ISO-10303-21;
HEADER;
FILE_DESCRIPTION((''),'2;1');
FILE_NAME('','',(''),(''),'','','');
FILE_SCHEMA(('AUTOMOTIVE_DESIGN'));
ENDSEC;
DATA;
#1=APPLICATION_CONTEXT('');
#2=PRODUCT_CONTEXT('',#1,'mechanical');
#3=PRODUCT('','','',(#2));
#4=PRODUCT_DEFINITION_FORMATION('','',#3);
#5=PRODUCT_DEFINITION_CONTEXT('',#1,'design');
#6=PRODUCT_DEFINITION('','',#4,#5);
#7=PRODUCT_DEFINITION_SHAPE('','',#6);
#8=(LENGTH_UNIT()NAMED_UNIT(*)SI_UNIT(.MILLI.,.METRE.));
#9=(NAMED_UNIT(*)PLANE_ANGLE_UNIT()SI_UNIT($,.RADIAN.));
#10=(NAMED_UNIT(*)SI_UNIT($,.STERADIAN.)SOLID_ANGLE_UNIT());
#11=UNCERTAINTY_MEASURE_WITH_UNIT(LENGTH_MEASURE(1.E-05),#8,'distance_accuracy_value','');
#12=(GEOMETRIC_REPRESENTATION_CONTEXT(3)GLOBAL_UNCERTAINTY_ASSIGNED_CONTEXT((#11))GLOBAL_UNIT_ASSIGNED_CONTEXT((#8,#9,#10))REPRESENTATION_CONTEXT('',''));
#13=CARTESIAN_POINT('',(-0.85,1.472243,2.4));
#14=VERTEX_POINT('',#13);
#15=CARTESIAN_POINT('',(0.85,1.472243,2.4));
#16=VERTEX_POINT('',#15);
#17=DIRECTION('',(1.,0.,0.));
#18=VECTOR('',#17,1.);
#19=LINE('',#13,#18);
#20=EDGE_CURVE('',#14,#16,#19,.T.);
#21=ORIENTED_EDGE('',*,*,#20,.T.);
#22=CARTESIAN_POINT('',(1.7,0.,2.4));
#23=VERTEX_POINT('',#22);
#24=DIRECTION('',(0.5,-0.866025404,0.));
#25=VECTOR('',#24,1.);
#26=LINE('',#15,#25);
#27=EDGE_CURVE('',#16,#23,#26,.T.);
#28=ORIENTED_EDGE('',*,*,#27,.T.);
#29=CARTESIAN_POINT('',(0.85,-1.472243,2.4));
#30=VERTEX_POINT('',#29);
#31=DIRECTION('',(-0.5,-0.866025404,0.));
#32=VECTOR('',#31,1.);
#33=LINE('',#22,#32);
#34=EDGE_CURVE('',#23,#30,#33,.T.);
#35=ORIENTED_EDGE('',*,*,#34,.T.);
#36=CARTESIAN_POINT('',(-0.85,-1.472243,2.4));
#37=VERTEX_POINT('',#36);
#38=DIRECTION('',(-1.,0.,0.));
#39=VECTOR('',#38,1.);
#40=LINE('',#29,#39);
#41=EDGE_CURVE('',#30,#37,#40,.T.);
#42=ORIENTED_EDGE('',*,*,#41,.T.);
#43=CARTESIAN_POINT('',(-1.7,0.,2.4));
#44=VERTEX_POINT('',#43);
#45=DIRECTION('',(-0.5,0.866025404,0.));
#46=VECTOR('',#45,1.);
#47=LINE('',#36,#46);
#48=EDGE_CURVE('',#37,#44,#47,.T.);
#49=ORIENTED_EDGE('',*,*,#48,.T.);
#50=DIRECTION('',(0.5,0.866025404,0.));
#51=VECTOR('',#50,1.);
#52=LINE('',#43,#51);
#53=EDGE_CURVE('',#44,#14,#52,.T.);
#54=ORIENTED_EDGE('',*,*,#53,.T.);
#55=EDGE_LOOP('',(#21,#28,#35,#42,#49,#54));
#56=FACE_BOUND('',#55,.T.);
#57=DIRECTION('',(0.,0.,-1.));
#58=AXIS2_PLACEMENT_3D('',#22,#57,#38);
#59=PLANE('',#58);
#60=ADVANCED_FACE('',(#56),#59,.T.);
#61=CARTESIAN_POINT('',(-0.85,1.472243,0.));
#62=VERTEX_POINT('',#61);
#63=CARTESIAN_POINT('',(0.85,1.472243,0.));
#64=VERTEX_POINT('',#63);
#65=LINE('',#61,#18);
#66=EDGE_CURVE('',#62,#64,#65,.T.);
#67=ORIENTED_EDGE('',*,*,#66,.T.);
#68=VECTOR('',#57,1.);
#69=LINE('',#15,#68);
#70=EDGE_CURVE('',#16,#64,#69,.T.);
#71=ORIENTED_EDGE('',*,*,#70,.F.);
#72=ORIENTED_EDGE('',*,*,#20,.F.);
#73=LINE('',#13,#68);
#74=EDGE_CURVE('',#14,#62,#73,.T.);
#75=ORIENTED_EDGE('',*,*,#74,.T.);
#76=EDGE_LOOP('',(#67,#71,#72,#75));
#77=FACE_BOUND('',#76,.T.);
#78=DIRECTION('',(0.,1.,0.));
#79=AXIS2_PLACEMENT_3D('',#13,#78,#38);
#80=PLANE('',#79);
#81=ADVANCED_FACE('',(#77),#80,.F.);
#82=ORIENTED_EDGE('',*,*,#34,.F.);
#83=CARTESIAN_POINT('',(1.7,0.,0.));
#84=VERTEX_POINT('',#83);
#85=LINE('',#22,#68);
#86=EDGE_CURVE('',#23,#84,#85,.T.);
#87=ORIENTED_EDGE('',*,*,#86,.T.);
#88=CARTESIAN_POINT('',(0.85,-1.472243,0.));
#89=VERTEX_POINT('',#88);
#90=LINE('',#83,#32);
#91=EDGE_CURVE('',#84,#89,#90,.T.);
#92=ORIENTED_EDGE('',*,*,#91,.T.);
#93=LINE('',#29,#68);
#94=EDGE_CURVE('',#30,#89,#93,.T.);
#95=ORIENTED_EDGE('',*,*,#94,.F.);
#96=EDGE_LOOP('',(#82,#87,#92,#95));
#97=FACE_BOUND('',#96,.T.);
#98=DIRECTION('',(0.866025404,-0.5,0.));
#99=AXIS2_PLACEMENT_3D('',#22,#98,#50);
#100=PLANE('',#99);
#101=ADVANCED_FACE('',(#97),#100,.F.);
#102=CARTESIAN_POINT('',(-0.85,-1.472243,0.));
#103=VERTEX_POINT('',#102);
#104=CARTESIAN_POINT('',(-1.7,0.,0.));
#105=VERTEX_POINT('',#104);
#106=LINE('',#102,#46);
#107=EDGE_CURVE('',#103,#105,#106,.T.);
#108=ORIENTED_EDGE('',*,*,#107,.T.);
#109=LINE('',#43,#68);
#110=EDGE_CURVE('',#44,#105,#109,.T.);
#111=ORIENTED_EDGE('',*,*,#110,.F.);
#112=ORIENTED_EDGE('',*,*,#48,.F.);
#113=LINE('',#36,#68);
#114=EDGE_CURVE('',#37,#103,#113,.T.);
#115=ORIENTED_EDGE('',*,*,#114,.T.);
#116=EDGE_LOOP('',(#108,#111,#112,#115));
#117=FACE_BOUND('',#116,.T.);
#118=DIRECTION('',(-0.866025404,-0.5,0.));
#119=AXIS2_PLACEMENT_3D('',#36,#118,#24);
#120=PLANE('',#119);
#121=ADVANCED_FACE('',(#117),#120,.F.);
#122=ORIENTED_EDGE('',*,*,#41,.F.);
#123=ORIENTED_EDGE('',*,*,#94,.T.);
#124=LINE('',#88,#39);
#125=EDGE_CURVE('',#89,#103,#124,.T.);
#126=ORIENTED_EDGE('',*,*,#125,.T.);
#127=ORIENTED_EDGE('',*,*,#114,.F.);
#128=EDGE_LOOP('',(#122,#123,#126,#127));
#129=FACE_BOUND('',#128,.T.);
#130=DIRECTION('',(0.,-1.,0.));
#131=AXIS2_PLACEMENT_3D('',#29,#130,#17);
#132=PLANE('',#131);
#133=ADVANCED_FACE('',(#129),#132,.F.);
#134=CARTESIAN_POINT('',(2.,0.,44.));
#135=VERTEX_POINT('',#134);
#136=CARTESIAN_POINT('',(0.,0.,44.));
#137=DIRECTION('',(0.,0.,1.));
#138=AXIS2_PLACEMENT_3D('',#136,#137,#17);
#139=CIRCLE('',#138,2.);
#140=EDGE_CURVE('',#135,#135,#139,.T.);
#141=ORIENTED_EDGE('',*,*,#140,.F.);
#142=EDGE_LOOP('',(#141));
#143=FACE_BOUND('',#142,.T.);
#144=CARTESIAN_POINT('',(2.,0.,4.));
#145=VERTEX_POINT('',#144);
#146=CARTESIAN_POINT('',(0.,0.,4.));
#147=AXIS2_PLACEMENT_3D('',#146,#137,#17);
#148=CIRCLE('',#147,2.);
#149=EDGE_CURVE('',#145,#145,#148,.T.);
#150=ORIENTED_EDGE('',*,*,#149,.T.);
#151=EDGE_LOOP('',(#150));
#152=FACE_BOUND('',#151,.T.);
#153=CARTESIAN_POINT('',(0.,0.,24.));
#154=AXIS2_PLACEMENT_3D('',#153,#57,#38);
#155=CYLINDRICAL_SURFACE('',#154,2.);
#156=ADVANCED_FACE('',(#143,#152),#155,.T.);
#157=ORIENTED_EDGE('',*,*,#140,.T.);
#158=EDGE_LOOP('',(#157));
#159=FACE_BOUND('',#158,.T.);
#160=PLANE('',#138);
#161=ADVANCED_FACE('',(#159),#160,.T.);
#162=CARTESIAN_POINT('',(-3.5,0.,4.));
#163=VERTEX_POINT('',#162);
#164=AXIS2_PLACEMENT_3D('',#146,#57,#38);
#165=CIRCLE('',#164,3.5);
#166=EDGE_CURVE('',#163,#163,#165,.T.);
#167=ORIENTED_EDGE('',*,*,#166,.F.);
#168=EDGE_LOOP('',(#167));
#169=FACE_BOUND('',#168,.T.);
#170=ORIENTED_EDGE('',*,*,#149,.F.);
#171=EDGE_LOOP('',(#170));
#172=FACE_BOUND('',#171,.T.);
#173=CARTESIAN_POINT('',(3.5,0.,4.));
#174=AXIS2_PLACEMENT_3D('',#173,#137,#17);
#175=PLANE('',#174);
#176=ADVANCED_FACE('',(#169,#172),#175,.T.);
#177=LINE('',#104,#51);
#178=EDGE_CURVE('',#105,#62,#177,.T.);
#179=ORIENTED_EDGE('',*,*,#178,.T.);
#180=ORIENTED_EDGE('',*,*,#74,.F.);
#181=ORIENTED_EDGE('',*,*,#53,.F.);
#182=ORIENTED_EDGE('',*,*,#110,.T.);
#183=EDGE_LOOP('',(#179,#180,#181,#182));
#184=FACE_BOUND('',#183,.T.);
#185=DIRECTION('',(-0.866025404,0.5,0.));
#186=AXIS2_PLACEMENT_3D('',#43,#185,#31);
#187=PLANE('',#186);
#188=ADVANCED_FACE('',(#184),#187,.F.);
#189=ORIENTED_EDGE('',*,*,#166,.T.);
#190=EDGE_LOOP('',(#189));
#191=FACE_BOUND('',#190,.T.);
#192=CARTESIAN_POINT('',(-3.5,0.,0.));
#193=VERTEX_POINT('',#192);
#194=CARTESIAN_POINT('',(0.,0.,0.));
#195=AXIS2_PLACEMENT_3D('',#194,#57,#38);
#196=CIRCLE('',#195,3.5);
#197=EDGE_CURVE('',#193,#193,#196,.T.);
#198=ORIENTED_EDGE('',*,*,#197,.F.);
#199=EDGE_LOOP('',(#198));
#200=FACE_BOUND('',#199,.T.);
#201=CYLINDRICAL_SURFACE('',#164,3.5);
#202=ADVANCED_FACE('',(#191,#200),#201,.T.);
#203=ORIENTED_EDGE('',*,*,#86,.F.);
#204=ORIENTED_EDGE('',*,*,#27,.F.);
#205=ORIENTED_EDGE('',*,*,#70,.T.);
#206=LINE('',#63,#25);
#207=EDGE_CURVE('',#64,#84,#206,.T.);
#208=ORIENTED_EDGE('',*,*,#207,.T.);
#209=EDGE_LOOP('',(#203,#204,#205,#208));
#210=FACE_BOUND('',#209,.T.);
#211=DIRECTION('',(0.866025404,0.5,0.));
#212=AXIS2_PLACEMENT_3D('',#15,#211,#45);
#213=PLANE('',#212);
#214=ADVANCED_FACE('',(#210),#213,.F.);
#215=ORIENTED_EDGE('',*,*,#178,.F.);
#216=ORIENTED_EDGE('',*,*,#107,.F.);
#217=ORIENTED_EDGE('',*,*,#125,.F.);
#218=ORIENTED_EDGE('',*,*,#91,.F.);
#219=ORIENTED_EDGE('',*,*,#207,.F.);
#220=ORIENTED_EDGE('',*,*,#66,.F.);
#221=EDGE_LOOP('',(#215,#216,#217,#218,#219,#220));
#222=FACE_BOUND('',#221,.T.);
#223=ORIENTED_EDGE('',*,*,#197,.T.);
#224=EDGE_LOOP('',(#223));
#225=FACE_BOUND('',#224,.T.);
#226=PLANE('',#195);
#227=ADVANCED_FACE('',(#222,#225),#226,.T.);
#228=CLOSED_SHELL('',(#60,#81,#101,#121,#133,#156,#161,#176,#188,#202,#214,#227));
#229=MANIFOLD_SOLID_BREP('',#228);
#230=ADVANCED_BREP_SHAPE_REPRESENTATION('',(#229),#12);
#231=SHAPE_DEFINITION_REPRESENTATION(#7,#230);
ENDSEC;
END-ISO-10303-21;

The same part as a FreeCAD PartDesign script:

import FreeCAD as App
import Part
import Sketcher
Q = App.Units.Quantity

doc = App.newDocument("Part")
body = doc.addObject("PartDesign::Body", "Body")

sketch1 = body.newObject("Sketcher::SketchObject", "Sketch")
sketch1.AttachmentSupport = (doc.getObject("XZ_Plane"), [""])
sketch1.MapMode = "FlatFace"
sketch1.addGeometry([
    Part.LineSegment(App.Vector(0, 4, 0), App.Vector(0, 0, 0)),
    Part.LineSegment(App.Vector(0, 0, 0), App.Vector(3.5, 0, 0)),
    Part.LineSegment(App.Vector(3.5, 0, 0), App.Vector(3.5, 4, 0)),
    Part.LineSegment(App.Vector(3.5, 4, 0), App.Vector(0, 4, 0)),
], False)
sketch1.addConstraint([
    Sketcher.Constraint("Coincident", 0, 2, 1, 1),
    Sketcher.Constraint("Coincident", 1, 2, 2, 1),
    Sketcher.Constraint("Coincident", 2, 2, 3, 1),
    Sketcher.Constraint("Coincident", 3, 2, 0, 1),
    Sketcher.Constraint("Vertical", 0),
    Sketcher.Constraint("Horizontal", 1),
    Sketcher.Constraint("Vertical", 2),
    Sketcher.Constraint("Horizontal", 3),
    Sketcher.Constraint("Coincident", 0, 2, -1, 1),
    Sketcher.Constraint("DistanceY", 0, 2, 0, 1, Q("4 mm")),
    Sketcher.Constraint("DistanceX", 1, 1, 1, 2, Q("3.5 mm")),
])
revolution = body.newObject("PartDesign::Revolution", "Revolution")
revolution.Profile = sketch1
revolution.ReferenceAxis = (sketch1, ["V_Axis"])
revolution.Angle = 360

sketch2 = body.newObject("Sketcher::SketchObject", "Sketch001")
sketch2.AttachmentSupport = (doc.getObject("XY_Plane"), [""])
sketch2.MapMode = "FlatFace"
sketch2.AttachmentOffset = App.Placement(App.Vector(0, 0, 4), App.Rotation())
sketch2.addGeometry(Part.Circle(App.Vector(0, 0, 0), App.Vector(0, 0, 1), 2), False)
sketch2.addConstraint([
    Sketcher.Constraint("Coincident", 0, 3, -1, 1),
    Sketcher.Constraint("Diameter", 0, Q("4 mm")),
])
pad1 = body.newObject("PartDesign::Pad", "Pad")
pad1.Profile = sketch2
pad1.Length = 20

sketch3 = body.newObject("Sketcher::SketchObject", "Sketch002")
sketch3.AttachmentSupport = (doc.getObject("XY_Plane"), [""])
sketch3.MapMode = "FlatFace"
sketch3.AttachmentOffset = App.Placement(App.Vector(0, 0, 24), App.Rotation())
sketch3.addGeometry(Part.Circle(App.Vector(0, 0, 0), App.Vector(0, 0, 1), 2), False)
sketch3.addConstraint([
    Sketcher.Constraint("Coincident", 0, 3, -1, 1),
    Sketcher.Constraint("Diameter", 0, Q("4 mm")),
])
pad2 = body.newObject("PartDesign::Pad", "Pad001")
pad2.Profile = sketch3
pad2.Length = 20

sketch4 = body.newObject("Sketcher::SketchObject", "Sketch003")
sketch4.AttachmentSupport = (doc.getObject("XY_Plane"), [""])
sketch4.MapMode = "FlatFace"
sketch4.addGeometry([
    Part.LineSegment(App.Vector(1.7, 0, 0), App.Vector(0.8, -1.5, 0)),
    Part.LineSegment(App.Vector(0.8, -1.5, 0), App.Vector(-0.8, -1.5, 0)),
    Part.LineSegment(App.Vector(-0.8, -1.5, 0), App.Vector(-1.7, 0, 0)),
    Part.LineSegment(App.Vector(-1.7, 0, 0), App.Vector(-0.8, 1.5, 0)),
    Part.LineSegment(App.Vector(-0.8, 1.5, 0), App.Vector(0.8, 1.5, 0)),
    Part.LineSegment(App.Vector(0.8, 1.5, 0), App.Vector(1.7, 0, 0)),
], False)
sketch4.addConstraint([
    Sketcher.Constraint("Coincident", 0, 2, 1, 1),
    Sketcher.Constraint("Coincident", 1, 2, 2, 1),
    Sketcher.Constraint("Coincident", 2, 2, 3, 1),
    Sketcher.Constraint("Coincident", 3, 2, 4, 1),
    Sketcher.Constraint("Coincident", 4, 2, 5, 1),
    Sketcher.Constraint("Coincident", 5, 2, 0, 1),
    Sketcher.Constraint("Horizontal", 1),
    Sketcher.Constraint("Horizontal", 4),
    Sketcher.Constraint("Symmetric", 0, 2, 3, 2, -1, 1),
    Sketcher.Constraint("Symmetric", 2, 2, 5, 2, -1, 1),
    Sketcher.Constraint("PointOnObject", 2, 2, -1),
    Sketcher.Constraint("Parallel", 2, 5),
    Sketcher.Constraint("Vertical", 1, 2, 3, 2),
    Sketcher.Constraint("Angle", 0, Q("-120 deg")),
    Sketcher.Constraint("DistanceX", 1, 2, 1, 1, Q("1.7 mm")),
    Sketcher.Constraint("Distance", 0, Q("1.7 mm")),
])
pocket1 = body.newObject("PartDesign::Pocket", "Pocket")
pocket1.Profile = sketch4
pocket1.Length = 2.4
pocket1.Reversed = True

doc.recompute()
